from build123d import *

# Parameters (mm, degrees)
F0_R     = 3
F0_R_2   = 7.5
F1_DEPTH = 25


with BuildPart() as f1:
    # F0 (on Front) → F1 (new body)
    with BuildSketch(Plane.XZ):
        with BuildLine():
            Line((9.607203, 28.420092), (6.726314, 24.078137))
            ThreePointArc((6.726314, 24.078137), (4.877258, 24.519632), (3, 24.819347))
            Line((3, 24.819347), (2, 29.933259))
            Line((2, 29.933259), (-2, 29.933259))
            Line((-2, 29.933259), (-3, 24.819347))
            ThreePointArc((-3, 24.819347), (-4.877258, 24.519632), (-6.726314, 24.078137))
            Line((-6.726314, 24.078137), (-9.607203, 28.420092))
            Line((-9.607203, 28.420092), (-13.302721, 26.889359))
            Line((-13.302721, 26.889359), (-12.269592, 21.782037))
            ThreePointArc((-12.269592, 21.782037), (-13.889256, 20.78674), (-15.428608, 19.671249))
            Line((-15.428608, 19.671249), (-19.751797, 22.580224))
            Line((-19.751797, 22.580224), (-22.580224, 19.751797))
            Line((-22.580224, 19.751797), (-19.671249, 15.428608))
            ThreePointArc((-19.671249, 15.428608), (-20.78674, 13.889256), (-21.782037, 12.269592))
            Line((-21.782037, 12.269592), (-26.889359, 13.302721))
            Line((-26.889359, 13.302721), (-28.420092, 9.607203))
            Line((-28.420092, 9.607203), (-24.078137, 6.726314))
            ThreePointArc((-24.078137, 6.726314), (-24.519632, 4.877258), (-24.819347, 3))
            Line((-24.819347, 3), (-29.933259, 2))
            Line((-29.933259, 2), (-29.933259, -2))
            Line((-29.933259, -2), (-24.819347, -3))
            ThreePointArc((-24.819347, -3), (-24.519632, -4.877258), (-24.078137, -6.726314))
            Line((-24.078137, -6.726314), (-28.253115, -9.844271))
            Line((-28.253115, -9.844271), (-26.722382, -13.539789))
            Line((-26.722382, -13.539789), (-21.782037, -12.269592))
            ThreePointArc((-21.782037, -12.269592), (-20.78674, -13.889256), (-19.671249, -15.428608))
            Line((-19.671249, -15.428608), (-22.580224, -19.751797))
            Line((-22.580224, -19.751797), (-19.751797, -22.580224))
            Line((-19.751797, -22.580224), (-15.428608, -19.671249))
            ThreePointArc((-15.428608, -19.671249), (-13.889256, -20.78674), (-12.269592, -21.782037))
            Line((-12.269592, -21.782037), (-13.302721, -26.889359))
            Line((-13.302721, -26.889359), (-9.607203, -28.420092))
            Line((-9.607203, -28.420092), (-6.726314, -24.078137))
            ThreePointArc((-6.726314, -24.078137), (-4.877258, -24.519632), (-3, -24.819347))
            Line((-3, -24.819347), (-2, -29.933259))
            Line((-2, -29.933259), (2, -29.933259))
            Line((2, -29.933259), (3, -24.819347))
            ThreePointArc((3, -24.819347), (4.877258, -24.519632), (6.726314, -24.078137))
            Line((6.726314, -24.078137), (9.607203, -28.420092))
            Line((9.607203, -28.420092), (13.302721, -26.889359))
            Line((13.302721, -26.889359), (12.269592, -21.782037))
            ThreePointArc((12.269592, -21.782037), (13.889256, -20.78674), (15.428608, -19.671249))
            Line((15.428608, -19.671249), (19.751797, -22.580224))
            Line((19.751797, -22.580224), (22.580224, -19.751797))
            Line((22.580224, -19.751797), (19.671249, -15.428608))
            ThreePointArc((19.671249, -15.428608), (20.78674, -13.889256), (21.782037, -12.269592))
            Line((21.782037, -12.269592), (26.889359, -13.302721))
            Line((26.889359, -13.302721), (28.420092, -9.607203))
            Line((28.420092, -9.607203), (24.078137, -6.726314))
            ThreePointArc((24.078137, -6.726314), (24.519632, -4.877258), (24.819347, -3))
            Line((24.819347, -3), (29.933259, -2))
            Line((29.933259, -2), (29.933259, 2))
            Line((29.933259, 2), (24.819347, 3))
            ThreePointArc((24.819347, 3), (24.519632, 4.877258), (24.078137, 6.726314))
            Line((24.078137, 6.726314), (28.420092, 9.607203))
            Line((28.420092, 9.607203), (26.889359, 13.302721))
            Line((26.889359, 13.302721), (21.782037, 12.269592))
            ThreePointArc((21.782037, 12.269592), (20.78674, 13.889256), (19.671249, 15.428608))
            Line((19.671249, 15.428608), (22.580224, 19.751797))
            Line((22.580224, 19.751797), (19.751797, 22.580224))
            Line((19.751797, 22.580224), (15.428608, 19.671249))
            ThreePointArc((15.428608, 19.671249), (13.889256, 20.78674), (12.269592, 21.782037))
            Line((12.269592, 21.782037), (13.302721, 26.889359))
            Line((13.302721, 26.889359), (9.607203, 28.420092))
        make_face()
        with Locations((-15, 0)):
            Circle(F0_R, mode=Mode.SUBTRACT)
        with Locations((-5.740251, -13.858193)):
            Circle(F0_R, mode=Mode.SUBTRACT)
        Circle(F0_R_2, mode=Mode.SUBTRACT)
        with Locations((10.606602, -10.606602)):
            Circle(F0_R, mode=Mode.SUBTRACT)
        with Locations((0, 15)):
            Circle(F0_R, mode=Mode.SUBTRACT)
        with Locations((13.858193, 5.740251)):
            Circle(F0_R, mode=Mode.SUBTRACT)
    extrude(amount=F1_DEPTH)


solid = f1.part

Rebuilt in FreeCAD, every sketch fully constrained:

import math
import FreeCAD as App
import Part
import Sketcher
from FreeCAD import Vector
Q = App.Units.Quantity

doc = App.newDocument("Part")
body = doc.addObject("PartDesign::Body", "Body")

sketch1 = doc.addObject("Sketcher::SketchObject", "Sketch")
body.addObject(sketch1)
sketch1.AttachmentSupport = (doc.XZ_Plane, [""])
sketch1.MapMode = "FlatFace"
sketch1.addGeometry([
    Part.LineSegment(Vector(9.607203, 28.420092, 0), Vector(6.726314, 24.078137, 0)),
    Part.ArcOfCircle(Part.Circle(Vector(0.00002, 0.000106, 0), Vector(0, 0, 1), 24.999892), math.radians(74.392083), math.radians(83.107915)),
    Part.LineSegment(Vector(3, 24.819347, 0), Vector(2, 29.933259, 0)),
    Part.LineSegment(Vector(2, 29.933259, 0), Vector(-2, 29.933259, 0)),
    Part.LineSegment(Vector(-2, 29.933259, 0), Vector(-3, 24.819347, 0)),
    Part.ArcOfCircle(Part.Circle(Vector(-0.00002, 0.000106, 0), Vector(0, 0, 1), 24.999892), math.radians(96.892085), math.radians(105.607917)),
    Part.LineSegment(Vector(-6.726314, 24.078137, 0), Vector(-9.607203, 28.420092, 0)),
    Part.LineSegment(Vector(-9.607203, 28.420092, 0), Vector(-13.302721, 26.889359, 0)),
    Part.LineSegment(Vector(-13.302721, 26.889359, 0), Vector(-12.269592, 21.782037, 0)),
    Part.ArcOfCircle(Part.Circle(Vector(0.000046, -0.000059, 0), Vector(0, 0, 1), 25.000075), math.radians(119.392129), math.radians(128.107896)),
    Part.LineSegment(Vector(-15.428608, 19.671249, 0), Vector(-19.751797, 22.580224, 0)),
    Part.LineSegment(Vector(-19.751797, 22.580224, 0), Vector(-22.580224, 19.751797, 0)),
    Part.LineSegment(Vector(-22.580224, 19.751797, 0), Vector(-19.671249, 15.428608, 0)),
    Part.ArcOfCircle(Part.Circle(Vector(0.000059, -0.000046, 0), Vector(0, 0, 1), 25.000075), math.radians(141.892104), math.radians(150.607871)),
    Part.LineSegment(Vector(-21.782037, 12.269592, 0), Vector(-26.889359, 13.302721, 0)),
    Part.LineSegment(Vector(-26.889359, 13.302721, 0), Vector(-28.420092, 9.607203, 0)),
    Part.LineSegment(Vector(-28.420092, 9.607203, 0), Vector(-24.078137, 6.726314, 0)),
    Part.ArcOfCircle(Part.Circle(Vector(-0.000106, 0.00002, 0), Vector(0, 0, 1), 24.999892), math.radians(164.392083), math.radians(173.107915)),
    Part.LineSegment(Vector(-24.819347, 3, 0), Vector(-29.933259, 2, 0)),
    Part.LineSegment(Vector(-29.933259, 2, 0), Vector(-29.933259, -2, 0)),
    Part.LineSegment(Vector(-29.933259, -2, 0), Vector(-24.819347, -3, 0)),
    Part.ArcOfCircle(Part.Circle(Vector(-0.000106, -0.00002, 0), Vector(0, 0, 1), 24.999892), math.radians(-173.107915), math.radians(-164.392083)),
    Part.LineSegment(Vector(-24.078137, -6.726314, 0), Vector(-28.253115, -9.844271, 0)),
    Part.LineSegment(Vector(-28.253115, -9.844271, 0), Vector(-26.722382, -13.539789, 0)),
    Part.LineSegment(Vector(-26.722382, -13.539789, 0), Vector(-21.782037, -12.269592, 0)),
    Part.ArcOfCircle(Part.Circle(Vector(0.000059, 0.000046, 0), Vector(0, 0, 1), 25.000075), math.radians(-150.607871), math.radians(-141.892104)),
    Part.LineSegment(Vector(-19.671249, -15.428608, 0), Vector(-22.580224, -19.751797, 0)),
    Part.LineSegment(Vector(-22.580224, -19.751797, 0), Vector(-19.751797, -22.580224, 0)),
    Part.LineSegment(Vector(-19.751797, -22.580224, 0), Vector(-15.428608, -19.671249, 0)),
    Part.ArcOfCircle(Part.Circle(Vector(0.000046, 0.000059, 0), Vector(0, 0, 1), 25.000075), math.radians(-128.107896), math.radians(-119.392129)),
    Part.LineSegment(Vector(-12.269592, -21.782037, 0), Vector(-13.302721, -26.889359, 0)),
    Part.LineSegment(Vector(-13.302721, -26.889359, 0), Vector(-9.607203, -28.420092, 0)),
    Part.LineSegment(Vector(-9.607203, -28.420092, 0), Vector(-6.726314, -24.078137, 0)),
    Part.ArcOfCircle(Part.Circle(Vector(-0.00002, -0.000106, 0), Vector(0, 0, 1), 24.999892), math.radians(-105.607917), math.radians(-96.892085)),
    Part.LineSegment(Vector(-3, -24.819347, 0), Vector(-2, -29.933259, 0)),
    Part.LineSegment(Vector(-2, -29.933259, 0), Vector(2, -29.933259, 0)),
    Part.LineSegment(Vector(2, -29.933259, 0), Vector(3, -24.819347, 0)),
    Part.ArcOfCircle(Part.Circle(Vector(0.00002, -0.000106, 0), Vector(0, 0, 1), 24.999892), math.radians(-83.107915), math.radians(-74.392083)),
    Part.LineSegment(Vector(6.726314, -24.078137, 0), Vector(9.607203, -28.420092, 0)),
    Part.LineSegment(Vector(9.607203, -28.420092, 0), Vector(13.302721, -26.889359, 0)),
    Part.LineSegment(Vector(13.302721, -26.889359, 0), Vector(12.269592, -21.782037, 0)),
    Part.ArcOfCircle(Part.Circle(Vector(-0.000046, 0.000059, 0), Vector(0, 0, 1), 25.000075), math.radians(-60.607871), math.radians(-51.892104)),
    Part.LineSegment(Vector(15.428608, -19.671249, 0), Vector(19.751797, -22.580224, 0)),
    Part.LineSegment(Vector(19.751797, -22.580224, 0), Vector(22.580224, -19.751797, 0)),
    Part.LineSegment(Vector(22.580224, -19.751797, 0), Vector(19.671249, -15.428608, 0)),
    Part.ArcOfCircle(Part.Circle(Vector(-0.000059, 0.000046, 0), Vector(0, 0, 1), 25.000075), math.radians(-38.107896), math.radians(-29.392129)),
    Part.LineSegment(Vector(21.782037, -12.269592, 0), Vector(26.889359, -13.302721, 0)),
    Part.LineSegment(Vector(26.889359, -13.302721, 0), Vector(28.420092, -9.607203, 0)),
    Part.LineSegment(Vector(28.420092, -9.607203, 0), Vector(24.078137, -6.726314, 0)),
    Part.ArcOfCircle(Part.Circle(Vector(0.000106, -0.00002, 0), Vector(0, 0, 1), 24.999892), math.radians(-15.607917), math.radians(-6.892085)),
    Part.LineSegment(Vector(24.819347, -3, 0), Vector(29.933259, -2, 0)),
    Part.LineSegment(Vector(29.933259, -2, 0), Vector(29.933259, 2, 0)),
    Part.LineSegment(Vector(29.933259, 2, 0), Vector(24.819347, 3, 0)),
    Part.ArcOfCircle(Part.Circle(Vector(0.000106, 0.00002, 0), Vector(0, 0, 1), 24.999892), math.radians(6.892085), math.radians(15.607917)),
    Part.LineSegment(Vector(24.078137, 6.726314, 0), Vector(28.420092, 9.607203, 0)),
    Part.LineSegment(Vector(28.420092, 9.607203, 0), Vector(26.889359, 13.302721, 0)),
    Part.LineSegment(Vector(26.889359, 13.302721, 0), Vector(21.782037, 12.269592, 0)),
    Part.ArcOfCircle(Part.Circle(Vector(-0.000059, -0.000046, 0), Vector(0, 0, 1), 25.000075), math.radians(29.392129), math.radians(38.107896)),
    Part.LineSegment(Vector(19.671249, 15.428608, 0), Vector(22.580224, 19.751797, 0)),
    Part.LineSegment(Vector(22.580224, 19.751797, 0), Vector(19.751797, 22.580224, 0)),
    Part.LineSegment(Vector(19.751797, 22.580224, 0), Vector(15.428608, 19.671249, 0)),
    Part.ArcOfCircle(Part.Circle(Vector(-0.000046, -0.000059, 0), Vector(0, 0, 1), 25.000075), math.radians(51.892104), math.radians(60.607871)),
    Part.LineSegment(Vector(12.269592, 21.782037, 0), Vector(13.302721, 26.889359, 0)),
    Part.LineSegment(Vector(13.302721, 26.889359, 0), Vector(9.607203, 28.420092, 0)),
    Part.Circle(Vector(-5.740251, -13.858193, 0), Vector(0, 0, 1), 3),
    Part.Circle(Vector(-15, 0, 0), Vector(0, 0, 1), 3),
    Part.Circle(Vector(10.606602, -10.606602, 0), Vector(0, 0, 1), 3),
    Part.Circle(Vector(0, 0, 0), Vector(0, 0, 1), 7.5),
    Part.Circle(Vector(13.858193, 5.740251, 0), Vector(0, 0, 1), 3),
    Part.Circle(Vector(0, 15, 0), Vector(0, 0, 1), 3),
], False)
sketch1.addConstraint([
    Sketcher.Constraint("Coincident", 0, 2, 1, 1),
    Sketcher.Constraint("Coincident", 1, 2, 2, 1),
    Sketcher.Constraint("Coincident", 2, 2, 3, 1),
    Sketcher.Constraint("Coincident", 3, 2, 4, 1),
    Sketcher.Constraint("Coincident", 4, 2, 5, 1),
    Sketcher.Constraint("Coincident", 5, 2, 6, 1),
    Sketcher.Constraint("Coincident", 6, 2, 7, 1),
    Sketcher.Constraint("Coincident", 7, 2, 8, 1),
    Sketcher.Constraint("Coincident", 8, 2, 9, 1),
    Sketcher.Constraint("Coincident", 9, 2, 10, 1),
    Sketcher.Constraint("Coincident", 10, 2, 11, 1),
    Sketcher.Constraint("Coincident", 11, 2, 12, 1),
    Sketcher.Constraint("Coincident", 12, 2, 13, 1),
    Sketcher.Constraint("Coincident", 13, 2, 14, 1),
    Sketcher.Constraint("Coincident", 14, 2, 15, 1),
    Sketcher.Constraint("Coincident", 15, 2, 16, 1),
    Sketcher.Constraint("Coincident", 16, 2, 17, 1),
    Sketcher.Constraint("Coincident", 17, 2, 18, 1),
    Sketcher.Constraint("Coincident", 18, 2, 19, 1),
    Sketcher.Constraint("Coincident", 19, 2, 20, 1),
    Sketcher.Constraint("Coincident", 20, 2, 21, 1),
    Sketcher.Constraint("Coincident", 21, 2, 22, 1),
    Sketcher.Constraint("Coincident", 22, 2, 23, 1),
    Sketcher.Constraint("Coincident", 23, 2, 24, 1),
    Sketcher.Constraint("Coincident", 24, 2, 25, 1),
    Sketcher.Constraint("Coincident", 25, 2, 26, 1),
    Sketcher.Constraint("Coincident", 26, 2, 27, 1),
    Sketcher.Constraint("Coincident", 27, 2, 28, 1),
    Sketcher.Constraint("Coincident", 28, 2, 29, 1),
    Sketcher.Constraint("Coincident", 29, 2, 30, 1),
    Sketcher.Constraint("Coincident", 30, 2, 31, 1),
    Sketcher.Constraint("Coincident", 31, 2, 32, 1),
    Sketcher.Constraint("Coincident", 32, 2, 33, 1),
    Sketcher.Constraint("Coincident", 33, 2, 34, 1),
    Sketcher.Constraint("Coincident", 34, 2, 35, 1),
    Sketcher.Constraint("Coincident", 35, 2, 36, 1),
    Sketcher.Constraint("Coincident", 36, 2, 37, 1),
    Sketcher.Constraint("Coincident", 37, 2, 38, 1),
    Sketcher.Constraint("Coincident", 38, 2, 39, 1),
    Sketcher.Constraint("Coincident", 39, 2, 40, 1),
    Sketcher.Constraint("Coincident", 40, 2, 41, 1),
    Sketcher.Constraint("Coincident", 41, 2, 42, 1),
    Sketcher.Constraint("Coincident", 42, 2, 43, 1),
    Sketcher.Constraint("Coincident", 43, 2, 44, 1),
    Sketcher.Constraint("Coincident", 44, 2, 45, 1),
    Sketcher.Constraint("Coincident", 45, 2, 46, 1),
    Sketcher.Constraint("Coincident", 46, 2, 47, 1),
    Sketcher.Constraint("Coincident", 47, 2, 48, 1),
    Sketcher.Constraint("Coincident", 48, 2, 49, 1),
    Sketcher.Constraint("Coincident", 49, 2, 50, 1),
    Sketcher.Constraint("Coincident", 50, 2, 51, 1),
    Sketcher.Constraint("Coincident", 51, 2, 52, 1),
    Sketcher.Constraint("Coincident", 52, 2, 53, 1),
    Sketcher.Constraint("Coincident", 53, 2, 54, 1),
    Sketcher.Constraint("Coincident", 54, 2, 55, 1),
    Sketcher.Constraint("Coincident", 55, 2, 56, 1),
    Sketcher.Constraint("Coincident", 56, 2, 57, 1),
    Sketcher.Constraint("Coincident", 57, 2, 58, 1),
    Sketcher.Constraint("Coincident", 58, 2, 59, 1),
    Sketcher.Constraint("Coincident", 59, 2, 60, 1),
    Sketcher.Constraint("Coincident", 60, 2, 61, 1),
    Sketcher.Constraint("Coincident", 61, 2, 62, 1),
    Sketcher.Constraint("Coincident", 62, 2, 63, 1),
    Sketcher.Constraint("Coincident", 63, 2, 0, 1),
    Sketcher.Constraint("Horizontal", 3),
    Sketcher.Constraint("Vertical", 19),
    Sketcher.Constraint("Horizontal", 35),
    Sketcher.Constraint("Vertical", 51),
    Sketcher.Constraint("Coincident", 67, 3, -1, 1),
    Sketcher.Constraint("Equal", 1, 5),
    Sketcher.Constraint("Equal", 9, 13),
    Sketcher.Constraint("Equal", 5, 17),
    Sketcher.Constraint("Equal", 17, 21),
    Sketcher.Constraint("Equal", 13, 25),
    Sketcher.Constraint("Equal", 25, 29),
    Sketcher.Constraint("Equal", 21, 33),
    Sketcher.Constraint("Equal", 33, 37),
    Sketcher.Constraint("Equal", 29, 41),
    Sketcher.Constraint("Equal", 41, 45),
    Sketcher.Constraint("Equal", 37, 49),
    Sketcher.Constraint("Equal", 49, 53),
    Sketcher.Constraint("Equal", 45, 57),
    Sketcher.Constraint("Equal", 57, 61),
    Sketcher.Constraint("Equal", 64, 65),
    Sketcher.Constraint("Equal", 65, 66),
    Sketcher.Constraint("Equal", 66, 68),
    Sketcher.Constraint("Equal", 68, 69),
    Sketcher.Constraint("Symmetric", 1, 3, 33, 3, -1, 1),
    Sketcher.Constraint("Symmetric", 5, 3, 37, 3, -1, 1),
    Sketcher.Constraint("Symmetric", 9, 3, 41, 3, -1, 1),
    Sketcher.Constraint("Symmetric", 13, 3, 45, 3, -1, 1),
    Sketcher.Constraint("Symmetric", 17, 3, 49, 3, -1, 1),
    Sketcher.Constraint("Symmetric", 21, 3, 53, 3, -1, 1),
    Sketcher.Constraint("Symmetric", 25, 3, 57, 3, -1, 1),
    Sketcher.Constraint("Symmetric", 29, 3, 61, 3, -1, 1),
    Sketcher.Constraint("Symmetric", 2, 2, 34, 2, -1, 1),
    Sketcher.Constraint("Symmetric", 6, 2, 38, 2, -1, 1),
    Sketcher.Constraint("Symmetric", 7, 2, 39, 2, -1, 1),
    Sketcher.Constraint("Symmetric", 10, 2, 42, 2, -1, 1),
    Sketcher.Constraint("Symmetric", 11, 2, 43, 2, -1, 1),
    Sketcher.Constraint("Symmetric", 14, 2, 46, 2, -1, 1),
    Sketcher.Constraint("Symmetric", 15, 2, 47, 2, -1, 1),
    Sketcher.Constraint("Symmetric", 18, 2, 50, 2, -1, 1),
    Sketcher.Constraint("Symmetric", 26, 2, 58, 2, -1, 1),
    Sketcher.Constraint("Symmetric", 27, 2, 59, 2, -1, 1),
    Sketcher.Constraint("Symmetric", 30, 2, 62, 2, -1, 1),
    Sketcher.Constraint("Symmetric", 31, 2, 63, 2, -1, 1),
    Sketcher.Constraint("Symmetric", 1, 3, 5, 3, -2),
    Sketcher.Constraint("Symmetric", 29, 3, 41, 3, -2),
    Sketcher.Constraint("Symmetric", 25, 3, 45, 3, -2),
    Sketcher.Constraint("Symmetric", 21, 3, 49, 3, -2),
    Sketcher.Constraint("Symmetric", 31, 2, 38, 2, -2),
    Sketcher.Constraint("Symmetric", 30, 2, 39, 2, -2),
    Sketcher.Constraint("Symmetric", 27, 2, 42, 2, -2),
    Sketcher.Constraint("Symmetric", 26, 2, 43, 2, -2),
    Sketcher.Constraint("Symmetric", 15, 2, 54, 2, -2),
    Sketcher.Constraint("Symmetric", 14, 2, 55, 2, -2),
    Sketcher.Constraint("PointOnObject", 65, 3, -1),
    Sketcher.Constraint("PointOnObject", 69, 3, -2),
    Sketcher.Constraint("Perpendicular", 0, 16),
    Sketcher.Constraint("Perpendicular", 2, 18),
    Sketcher.Constraint("Perpendicular", 4, 20),
    Sketcher.Constraint("Perpendicular", 7, 23),
    Sketcher.Constraint("Perpendicular", 10, 26),
    Sketcher.Constraint("Perpendicular", 11, 27),
    Sketcher.Constraint("Perpendicular", 12, 28),
    Sketcher.Constraint("Perpendicular", 14, 30),
    Sketcher.Constraint("Perpendicular", 15, 31),
    Sketcher.Constraint("Perpendicular", 16, 32),
    Sketcher.Constraint("Perpendicular", 18, 34),
    Sketcher.Constraint("Perpendicular", 20, 36),
    Sketcher.Constraint("Parallel", 6, 38),
    Sketcher.Constraint("Parallel", 8, 40),
    Sketcher.Constraint("Perpendicular", 26, 42),
    Sketcher.Constraint("Perpendicular", 28, 44),
    Sketcher.Constraint("Perpendicular", 30, 46),
    Sketcher.Constraint("Perpendicular", 32, 48),
    Sketcher.Constraint("Perpendicular", 34, 50),
    Sketcher.Constraint("Perpendicular", 36, 52),
    Sketcher.Constraint("Perpendicular", 38, 54),
    Sketcher.Constraint("Perpendicular", 40, 56),
    Sketcher.Constraint("Perpendicular", 42, 58),
    Sketcher.Constraint("Perpendicular", 44, 60),
    Sketcher.Constraint("Perpendicular", 46, 62),
    Sketcher.Constraint("Horizontal", 1, 2, 4, 2),
    Sketcher.Constraint("Horizontal", 0, 2, 5, 2),
    Sketcher.Constraint("Horizontal", 33, 2, 36, 2),
    Sketcher.Constraint("Horizontal", 29, 2, 40, 2),
    Sketcher.Constraint("Horizontal", 28, 2, 41, 2),
    Sketcher.Constraint("Horizontal", 24, 2, 45, 2),
    Sketcher.Constraint("Horizontal", 21, 2, 48, 2),
    Sketcher.Constraint("Horizontal", 20, 2, 49, 2),
    Sketcher.Constraint("Horizontal", 19, 2, 50, 2),
    Sketcher.Constraint("Horizontal", 18, 2, 51, 2),
    Sketcher.Constraint("Equal", 35, 19),
    Sketcher.Constraint("Equal", 0, 2),
    Sketcher.Constraint("Equal", 6, 8),
    Sketcher.Constraint("Equal", 8, 10),
    Sketcher.Constraint("Equal", 7, 11),
    Sketcher.Constraint("Equal", 10, 12),
    Sketcher.Constraint("Equal", 12, 14),
    Sketcher.Constraint("Equal", 11, 15),
    Sketcher.Constraint("Equal", 14, 16),
    Sketcher.Constraint("Equal", 16, 18),
    Sketcher.Constraint("Equal", 20, 22),
    Sketcher.Constraint("Equal", 15, 23),
    Sketcher.Constraint("Diameter", 64, 6.0),
    Sketcher.Constraint("Diameter", 67, 15.0),
    Sketcher.Constraint("DistanceX", 3, 2, 3, 1, 4.0),
    Sketcher.Constraint("Distance", 7, 4.0),
    Sketcher.Constraint("DistanceX", 65, 3, -1, 1, 15.0),
    Sketcher.Constraint("DistanceY", -1, 1, 69, 3, 15.0),
    Sketcher.Constraint("DistanceX", -1, 1, 1, 2, 3.0),
    Sketcher.Constraint("Angle", 7, Q("-157.500009 deg")),
    Sketcher.Constraint("Radius", 1, 24.999892),
    Sketcher.Constraint("Radius", 9, 25.000075),
    Sketcher.Constraint("Distance", 24, 5.10102),
    Sketcher.Constraint("DistanceX", 64, 3, -1, 1, 5.740251),
    Sketcher.Constraint("DistanceY", -1, 1, 68, 3, 5.740251),
    Sketcher.Constraint("DistanceY", -1, 1, 2, 2, 29.933259),
    Sketcher.Constraint("DistanceX", 7, 2, -1, 1, 13.302721),
    Sketcher.Constraint("DistanceY", -1, 1, 7, 2, 26.889359),
    Sketcher.Constraint("DistanceX", 8, 2, -1, 1, 12.269592),
    Sketcher.Constraint("DistanceY", -1, 1, 9, 2, 19.671249),
    Sketcher.Constraint("DistanceX", 12, 2, -1, 1, 19.671249),
    Sketcher.Constraint("DistanceY", -1, 1, 13, 2, 12.269592),
    Sketcher.Constraint("DistanceX", 14, 2, -1, 1, 26.889359),
    Sketcher.Constraint("DistanceX", 18, 2, -1, 1, 29.933259),
    Sketcher.Constraint("DistanceY", 22, 2, -1, 1, 9.844271),
    Sketcher.Constraint("DistanceX", 23, 2, -1, 1, 26.722382),
    Sketcher.Constraint("DistanceY", 64, 3, -1, 1, 13.858193),
    Sketcher.Constraint("DistanceX", -1, 1, 66, 3, 10.606602),
    Sketcher.Constraint("DistanceY", 66, 3, -1, 1, 10.606602),
    Sketcher.Constraint("DistanceX", -1, 1, 68, 3, 13.858193),
    Sketcher.Constraint("DistanceX", 9, 2, -1, 1, 15.428608),
])
pad1 = doc.addObject("PartDesign::Pad", "Pad")
body.addObject(pad1)
pad1.Profile = sketch1
pad1.Length = 25

doc.recompute()
